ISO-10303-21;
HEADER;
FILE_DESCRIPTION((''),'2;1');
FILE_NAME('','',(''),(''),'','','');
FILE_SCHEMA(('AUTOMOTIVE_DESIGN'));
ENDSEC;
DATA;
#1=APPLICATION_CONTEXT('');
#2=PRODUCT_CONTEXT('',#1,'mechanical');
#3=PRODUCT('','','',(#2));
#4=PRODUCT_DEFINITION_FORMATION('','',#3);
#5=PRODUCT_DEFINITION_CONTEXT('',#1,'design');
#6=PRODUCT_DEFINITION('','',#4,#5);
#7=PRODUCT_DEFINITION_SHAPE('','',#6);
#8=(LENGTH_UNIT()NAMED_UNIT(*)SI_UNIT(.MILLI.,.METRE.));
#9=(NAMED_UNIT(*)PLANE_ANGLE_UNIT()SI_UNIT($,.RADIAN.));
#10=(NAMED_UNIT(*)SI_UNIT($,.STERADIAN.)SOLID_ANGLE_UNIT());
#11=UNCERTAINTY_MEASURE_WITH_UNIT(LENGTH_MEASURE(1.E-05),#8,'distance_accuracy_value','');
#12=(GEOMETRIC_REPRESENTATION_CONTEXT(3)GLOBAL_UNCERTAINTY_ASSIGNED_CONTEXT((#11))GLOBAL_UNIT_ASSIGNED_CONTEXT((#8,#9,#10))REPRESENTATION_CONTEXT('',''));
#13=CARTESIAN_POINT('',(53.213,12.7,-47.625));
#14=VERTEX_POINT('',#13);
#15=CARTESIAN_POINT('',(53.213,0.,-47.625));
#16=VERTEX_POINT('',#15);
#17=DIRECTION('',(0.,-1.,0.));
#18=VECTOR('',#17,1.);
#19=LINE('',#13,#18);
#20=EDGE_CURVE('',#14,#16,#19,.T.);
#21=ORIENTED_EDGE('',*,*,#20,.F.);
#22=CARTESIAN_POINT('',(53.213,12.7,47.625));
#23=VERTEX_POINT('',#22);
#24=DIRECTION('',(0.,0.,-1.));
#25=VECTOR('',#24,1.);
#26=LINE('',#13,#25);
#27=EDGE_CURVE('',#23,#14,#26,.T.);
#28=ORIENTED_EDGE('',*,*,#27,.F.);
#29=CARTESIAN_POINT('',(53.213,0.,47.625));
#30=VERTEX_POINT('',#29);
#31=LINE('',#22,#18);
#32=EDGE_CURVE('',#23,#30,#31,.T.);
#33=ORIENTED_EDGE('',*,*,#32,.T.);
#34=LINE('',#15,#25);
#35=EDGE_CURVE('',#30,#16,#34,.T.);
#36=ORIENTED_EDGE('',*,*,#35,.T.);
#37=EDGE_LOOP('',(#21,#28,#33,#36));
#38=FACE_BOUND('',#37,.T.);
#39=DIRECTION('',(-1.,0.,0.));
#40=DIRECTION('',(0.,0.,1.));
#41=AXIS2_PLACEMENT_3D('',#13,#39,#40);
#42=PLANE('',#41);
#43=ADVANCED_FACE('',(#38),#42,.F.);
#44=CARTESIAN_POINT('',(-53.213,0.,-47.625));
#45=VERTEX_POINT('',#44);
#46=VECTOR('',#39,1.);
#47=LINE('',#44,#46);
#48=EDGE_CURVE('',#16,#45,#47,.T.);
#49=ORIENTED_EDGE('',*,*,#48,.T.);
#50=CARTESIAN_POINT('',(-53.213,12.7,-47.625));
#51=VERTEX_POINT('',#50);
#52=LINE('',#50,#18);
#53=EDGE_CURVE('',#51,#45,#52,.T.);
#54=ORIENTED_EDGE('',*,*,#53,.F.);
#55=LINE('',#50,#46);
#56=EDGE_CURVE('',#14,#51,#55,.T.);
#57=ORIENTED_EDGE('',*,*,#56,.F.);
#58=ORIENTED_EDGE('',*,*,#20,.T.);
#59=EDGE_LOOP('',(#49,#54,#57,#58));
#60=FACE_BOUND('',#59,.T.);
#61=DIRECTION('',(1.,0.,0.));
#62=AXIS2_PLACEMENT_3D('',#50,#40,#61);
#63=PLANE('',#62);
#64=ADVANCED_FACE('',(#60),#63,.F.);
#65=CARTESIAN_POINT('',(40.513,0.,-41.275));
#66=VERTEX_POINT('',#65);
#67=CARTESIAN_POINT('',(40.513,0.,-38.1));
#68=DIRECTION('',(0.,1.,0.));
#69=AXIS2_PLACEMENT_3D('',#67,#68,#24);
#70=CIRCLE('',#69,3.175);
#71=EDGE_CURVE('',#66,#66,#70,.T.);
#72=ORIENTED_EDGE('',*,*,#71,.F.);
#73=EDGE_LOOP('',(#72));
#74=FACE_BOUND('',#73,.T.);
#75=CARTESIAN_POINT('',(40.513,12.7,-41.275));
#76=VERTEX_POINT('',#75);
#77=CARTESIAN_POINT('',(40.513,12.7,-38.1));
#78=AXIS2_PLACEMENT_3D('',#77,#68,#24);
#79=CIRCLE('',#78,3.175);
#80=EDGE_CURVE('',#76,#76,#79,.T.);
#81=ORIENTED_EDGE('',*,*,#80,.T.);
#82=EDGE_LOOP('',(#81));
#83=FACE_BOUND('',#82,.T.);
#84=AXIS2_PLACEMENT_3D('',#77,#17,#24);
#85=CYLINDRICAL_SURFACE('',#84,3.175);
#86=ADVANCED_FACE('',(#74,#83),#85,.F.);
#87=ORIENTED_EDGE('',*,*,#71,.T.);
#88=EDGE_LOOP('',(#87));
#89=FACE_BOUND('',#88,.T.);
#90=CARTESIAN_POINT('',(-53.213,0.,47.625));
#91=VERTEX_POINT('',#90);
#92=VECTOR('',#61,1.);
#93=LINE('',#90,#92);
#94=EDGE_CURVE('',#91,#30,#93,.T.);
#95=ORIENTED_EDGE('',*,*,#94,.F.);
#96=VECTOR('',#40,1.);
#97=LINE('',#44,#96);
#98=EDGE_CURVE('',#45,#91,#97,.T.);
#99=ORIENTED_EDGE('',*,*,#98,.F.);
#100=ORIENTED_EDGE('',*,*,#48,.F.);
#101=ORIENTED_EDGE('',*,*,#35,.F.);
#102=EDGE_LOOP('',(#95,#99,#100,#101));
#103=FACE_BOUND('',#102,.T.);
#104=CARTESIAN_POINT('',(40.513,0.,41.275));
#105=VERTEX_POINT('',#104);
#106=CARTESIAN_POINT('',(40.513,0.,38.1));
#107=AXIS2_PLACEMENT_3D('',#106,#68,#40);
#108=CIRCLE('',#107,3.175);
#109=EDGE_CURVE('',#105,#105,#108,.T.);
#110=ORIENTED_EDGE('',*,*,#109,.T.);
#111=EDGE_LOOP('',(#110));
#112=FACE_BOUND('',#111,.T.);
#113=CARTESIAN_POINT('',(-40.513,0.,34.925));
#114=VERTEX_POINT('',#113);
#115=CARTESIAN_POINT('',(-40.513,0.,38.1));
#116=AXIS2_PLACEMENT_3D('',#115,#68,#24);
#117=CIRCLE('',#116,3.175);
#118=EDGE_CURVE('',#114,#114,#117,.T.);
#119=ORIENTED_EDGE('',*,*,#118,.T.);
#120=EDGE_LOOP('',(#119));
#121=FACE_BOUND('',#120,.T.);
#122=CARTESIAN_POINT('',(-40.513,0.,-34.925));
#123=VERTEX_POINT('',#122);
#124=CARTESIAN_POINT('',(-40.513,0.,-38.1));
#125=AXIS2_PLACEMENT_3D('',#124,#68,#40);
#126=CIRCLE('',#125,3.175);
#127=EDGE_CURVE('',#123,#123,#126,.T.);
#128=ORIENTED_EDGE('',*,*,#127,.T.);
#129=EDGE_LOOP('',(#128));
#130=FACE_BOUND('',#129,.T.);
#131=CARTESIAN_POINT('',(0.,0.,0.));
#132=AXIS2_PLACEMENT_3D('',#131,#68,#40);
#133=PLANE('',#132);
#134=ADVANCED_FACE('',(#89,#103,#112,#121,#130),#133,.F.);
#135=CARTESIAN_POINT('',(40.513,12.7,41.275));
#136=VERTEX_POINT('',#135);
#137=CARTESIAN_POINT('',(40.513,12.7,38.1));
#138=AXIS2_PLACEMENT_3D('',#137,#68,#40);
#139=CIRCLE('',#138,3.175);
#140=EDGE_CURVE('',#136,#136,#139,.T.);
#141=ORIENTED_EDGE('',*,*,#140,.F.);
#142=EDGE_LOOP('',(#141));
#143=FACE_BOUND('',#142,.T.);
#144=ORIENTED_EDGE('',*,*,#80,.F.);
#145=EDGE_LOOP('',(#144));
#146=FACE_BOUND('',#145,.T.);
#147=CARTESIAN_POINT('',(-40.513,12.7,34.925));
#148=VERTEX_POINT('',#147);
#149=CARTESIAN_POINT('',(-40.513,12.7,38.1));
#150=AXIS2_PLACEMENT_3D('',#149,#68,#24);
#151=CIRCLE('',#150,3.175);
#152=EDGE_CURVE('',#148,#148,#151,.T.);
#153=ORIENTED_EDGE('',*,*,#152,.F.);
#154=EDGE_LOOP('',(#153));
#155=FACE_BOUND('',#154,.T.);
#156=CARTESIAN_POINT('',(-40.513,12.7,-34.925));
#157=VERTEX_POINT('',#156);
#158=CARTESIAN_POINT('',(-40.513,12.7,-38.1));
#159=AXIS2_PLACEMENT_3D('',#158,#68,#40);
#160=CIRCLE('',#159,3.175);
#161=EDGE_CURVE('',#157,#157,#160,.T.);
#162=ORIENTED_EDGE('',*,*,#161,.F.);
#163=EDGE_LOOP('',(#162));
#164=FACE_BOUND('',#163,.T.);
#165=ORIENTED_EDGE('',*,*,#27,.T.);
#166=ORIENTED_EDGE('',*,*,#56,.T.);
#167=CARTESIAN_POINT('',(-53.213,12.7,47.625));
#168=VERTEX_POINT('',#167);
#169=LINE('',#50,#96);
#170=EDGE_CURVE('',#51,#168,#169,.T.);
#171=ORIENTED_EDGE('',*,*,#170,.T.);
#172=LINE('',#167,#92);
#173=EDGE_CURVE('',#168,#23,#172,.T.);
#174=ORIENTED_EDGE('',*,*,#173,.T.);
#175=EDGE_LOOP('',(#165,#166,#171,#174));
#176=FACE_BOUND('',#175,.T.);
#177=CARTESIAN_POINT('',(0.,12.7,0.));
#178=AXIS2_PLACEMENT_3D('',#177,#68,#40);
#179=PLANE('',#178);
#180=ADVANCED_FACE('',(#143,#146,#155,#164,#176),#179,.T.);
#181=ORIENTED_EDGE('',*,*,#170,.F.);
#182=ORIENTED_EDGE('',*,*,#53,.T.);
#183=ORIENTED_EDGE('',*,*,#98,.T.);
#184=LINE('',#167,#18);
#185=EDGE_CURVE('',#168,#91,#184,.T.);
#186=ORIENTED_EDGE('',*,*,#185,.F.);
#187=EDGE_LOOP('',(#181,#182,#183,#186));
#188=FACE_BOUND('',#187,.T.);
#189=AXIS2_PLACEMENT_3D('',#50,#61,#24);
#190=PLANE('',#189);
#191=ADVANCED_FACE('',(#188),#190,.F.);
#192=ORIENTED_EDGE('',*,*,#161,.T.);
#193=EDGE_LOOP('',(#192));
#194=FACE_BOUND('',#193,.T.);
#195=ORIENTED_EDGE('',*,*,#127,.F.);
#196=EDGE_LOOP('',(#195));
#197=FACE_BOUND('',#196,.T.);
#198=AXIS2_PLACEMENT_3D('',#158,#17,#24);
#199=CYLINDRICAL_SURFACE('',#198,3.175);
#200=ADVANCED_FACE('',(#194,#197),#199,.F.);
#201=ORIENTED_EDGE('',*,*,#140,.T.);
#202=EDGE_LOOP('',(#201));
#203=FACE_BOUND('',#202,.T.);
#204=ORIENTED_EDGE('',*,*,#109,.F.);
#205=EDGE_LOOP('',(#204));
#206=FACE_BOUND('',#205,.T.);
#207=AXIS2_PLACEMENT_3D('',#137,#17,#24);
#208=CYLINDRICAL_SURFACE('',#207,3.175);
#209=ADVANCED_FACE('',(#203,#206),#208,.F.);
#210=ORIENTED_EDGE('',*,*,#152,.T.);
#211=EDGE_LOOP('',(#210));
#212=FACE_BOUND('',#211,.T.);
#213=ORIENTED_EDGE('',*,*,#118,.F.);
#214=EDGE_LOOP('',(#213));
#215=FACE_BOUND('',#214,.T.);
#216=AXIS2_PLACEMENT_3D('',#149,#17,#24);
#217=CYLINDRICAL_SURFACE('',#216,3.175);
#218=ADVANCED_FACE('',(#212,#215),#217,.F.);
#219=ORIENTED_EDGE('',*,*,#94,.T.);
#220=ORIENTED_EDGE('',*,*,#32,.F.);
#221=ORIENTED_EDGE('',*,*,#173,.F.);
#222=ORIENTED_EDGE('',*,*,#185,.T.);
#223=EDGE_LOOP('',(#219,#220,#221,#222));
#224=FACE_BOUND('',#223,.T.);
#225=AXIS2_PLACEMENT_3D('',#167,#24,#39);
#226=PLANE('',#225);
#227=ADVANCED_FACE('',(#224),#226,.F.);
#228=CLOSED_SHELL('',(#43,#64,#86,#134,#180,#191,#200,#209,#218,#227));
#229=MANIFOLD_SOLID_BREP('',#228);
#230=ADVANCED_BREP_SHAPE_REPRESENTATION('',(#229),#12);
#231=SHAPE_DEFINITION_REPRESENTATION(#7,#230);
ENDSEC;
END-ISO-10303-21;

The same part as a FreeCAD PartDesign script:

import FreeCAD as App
import Part
import Sketcher
Q = App.Units.Quantity

doc = App.newDocument("Part")
params = doc.addObject("Spreadsheet::Sheet", "Params")
for row, (alias, value) in enumerate([
    ("sketch1_diameter", "0.25 in"),
    ("sketch1_width", "4.19 in"),
    ("sketch1_height", "3.75 in"),
    ("pad1_length", "0.5 in"),
], start=1):
    params.set(f"A{row}", alias)
    params.set(f"B{row}", "=" + value)
    params.setAlias(f"B{row}", alias)

body = doc.addObject("PartDesign::Body", "Body")

sketch1 = body.newObject("Sketcher::SketchObject", "Sketch")
sketch1.AttachmentSupport = (doc.getObject("XZ_Plane"), [""])
sketch1.MapMode = "FlatFace"
sketch1.addGeometry(Part.LineSegment(App.Vector(-53.2, -47.6, 0), App.Vector(-53.2, 47.6, 0)), False)
sketch1.addGeometry(Part.LineSegment(App.Vector(-53.2, 47.6, 0), App.Vector(53.2, 47.6, 0)), False)
sketch1.addGeometry(Part.LineSegment(App.Vector(53.2, 47.6, 0), App.Vector(53.2, -47.6, 0)), False)
sketch1.addGeometry(Part.LineSegment(App.Vector(53.2, -47.6, 0), App.Vector(-53.2, -47.6, 0)), False)
sketch1.addGeometry(Part.Circle(App.Vector(-40.5, 38.1, 0), App.Vector(0, 0, 1), 3.2), False)
sketch1.addGeometry(Part.Circle(App.Vector(40.5, 38.1, 0), App.Vector(0, 0, 1), 3.2), False)
sketch1.addGeometry(Part.Circle(App.Vector(-40.5, -38.1, 0), App.Vector(0, 0, 1), 3.2), False)
sketch1.addGeometry(Part.Circle(App.Vector(40.5, -38.1, 0), App.Vector(0, 0, 1), 3.2), False)
sketch1.addConstraint(Sketcher.Constraint("Coincident", 0, 2, 1, 1))
sketch1.addConstraint(Sketcher.Constraint("Coincident", 1, 2, 2, 1))
sketch1.addConstraint(Sketcher.Constraint("Coincident", 2, 2, 3, 1))
sketch1.addConstraint(Sketcher.Constraint("Coincident", 3, 2, 0, 1))
sketch1.addConstraint(Sketcher.Constraint("Vertical", 0))
sketch1.addConstraint(Sketcher.Constraint("Horizontal", 1))
sketch1.addConstraint(Sketcher.Constraint("Vertical", 2))
sketch1.addConstraint(Sketcher.Constraint("Horizontal", 3))
sketch1.addConstraint(Sketcher.Constraint("Equal", 4, 5))
sketch1.addConstraint(Sketcher.Constraint("Equal", 5, 6))
sketch1.addConstraint(Sketcher.Constraint("Equal", 6, 7))
sketch1.addConstraint(Sketcher.Constraint("Symmetric", 5, 3, 6, 3, -1, 1))
sketch1.addConstraint(Sketcher.Constraint("Symmetric", 4, 3, 7, 3, -1, 1))
sketch1.addConstraint(Sketcher.Constraint("Symmetric", 0, 2, 2, 2, -1, 1))
sketch1.addConstraint(Sketcher.Constraint("Symmetric", 4, 3, 5, 3, -2))
sketch1.addConstraint(Sketcher.Constraint("Diameter", 4, Q("0.25 in")))
sketch1.addConstraint(Sketcher.Constraint("DistanceY", 6, 3, 4, 3, Q("3 in")))
sketch1.addConstraint(Sketcher.Constraint("DistanceX", 1, 1, 1, 2, Q("4.19 in")))
sketch1.addConstraint(Sketcher.Constraint("DistanceY", 0, 1, 0, 2, Q("3.75 in")))
sketch1.addConstraint(Sketcher.Constraint("DistanceX", 0, 2, 4, 3, Q("0.5 in")))
sketch1.setExpression("Constraints[15]", "Params.sketch1_diameter")
sketch1.setExpression("Constraints[17]", "Params.sketch1_width")
sketch1.setExpression("Constraints[18]", "Params.sketch1_height")
pad1 = body.newObject("PartDesign::Pad", "Pad")
pad1.Profile = sketch1
pad1.setExpression("Length", "Params.pad1_length")
pad1.Reversed = True

doc.recompute()
